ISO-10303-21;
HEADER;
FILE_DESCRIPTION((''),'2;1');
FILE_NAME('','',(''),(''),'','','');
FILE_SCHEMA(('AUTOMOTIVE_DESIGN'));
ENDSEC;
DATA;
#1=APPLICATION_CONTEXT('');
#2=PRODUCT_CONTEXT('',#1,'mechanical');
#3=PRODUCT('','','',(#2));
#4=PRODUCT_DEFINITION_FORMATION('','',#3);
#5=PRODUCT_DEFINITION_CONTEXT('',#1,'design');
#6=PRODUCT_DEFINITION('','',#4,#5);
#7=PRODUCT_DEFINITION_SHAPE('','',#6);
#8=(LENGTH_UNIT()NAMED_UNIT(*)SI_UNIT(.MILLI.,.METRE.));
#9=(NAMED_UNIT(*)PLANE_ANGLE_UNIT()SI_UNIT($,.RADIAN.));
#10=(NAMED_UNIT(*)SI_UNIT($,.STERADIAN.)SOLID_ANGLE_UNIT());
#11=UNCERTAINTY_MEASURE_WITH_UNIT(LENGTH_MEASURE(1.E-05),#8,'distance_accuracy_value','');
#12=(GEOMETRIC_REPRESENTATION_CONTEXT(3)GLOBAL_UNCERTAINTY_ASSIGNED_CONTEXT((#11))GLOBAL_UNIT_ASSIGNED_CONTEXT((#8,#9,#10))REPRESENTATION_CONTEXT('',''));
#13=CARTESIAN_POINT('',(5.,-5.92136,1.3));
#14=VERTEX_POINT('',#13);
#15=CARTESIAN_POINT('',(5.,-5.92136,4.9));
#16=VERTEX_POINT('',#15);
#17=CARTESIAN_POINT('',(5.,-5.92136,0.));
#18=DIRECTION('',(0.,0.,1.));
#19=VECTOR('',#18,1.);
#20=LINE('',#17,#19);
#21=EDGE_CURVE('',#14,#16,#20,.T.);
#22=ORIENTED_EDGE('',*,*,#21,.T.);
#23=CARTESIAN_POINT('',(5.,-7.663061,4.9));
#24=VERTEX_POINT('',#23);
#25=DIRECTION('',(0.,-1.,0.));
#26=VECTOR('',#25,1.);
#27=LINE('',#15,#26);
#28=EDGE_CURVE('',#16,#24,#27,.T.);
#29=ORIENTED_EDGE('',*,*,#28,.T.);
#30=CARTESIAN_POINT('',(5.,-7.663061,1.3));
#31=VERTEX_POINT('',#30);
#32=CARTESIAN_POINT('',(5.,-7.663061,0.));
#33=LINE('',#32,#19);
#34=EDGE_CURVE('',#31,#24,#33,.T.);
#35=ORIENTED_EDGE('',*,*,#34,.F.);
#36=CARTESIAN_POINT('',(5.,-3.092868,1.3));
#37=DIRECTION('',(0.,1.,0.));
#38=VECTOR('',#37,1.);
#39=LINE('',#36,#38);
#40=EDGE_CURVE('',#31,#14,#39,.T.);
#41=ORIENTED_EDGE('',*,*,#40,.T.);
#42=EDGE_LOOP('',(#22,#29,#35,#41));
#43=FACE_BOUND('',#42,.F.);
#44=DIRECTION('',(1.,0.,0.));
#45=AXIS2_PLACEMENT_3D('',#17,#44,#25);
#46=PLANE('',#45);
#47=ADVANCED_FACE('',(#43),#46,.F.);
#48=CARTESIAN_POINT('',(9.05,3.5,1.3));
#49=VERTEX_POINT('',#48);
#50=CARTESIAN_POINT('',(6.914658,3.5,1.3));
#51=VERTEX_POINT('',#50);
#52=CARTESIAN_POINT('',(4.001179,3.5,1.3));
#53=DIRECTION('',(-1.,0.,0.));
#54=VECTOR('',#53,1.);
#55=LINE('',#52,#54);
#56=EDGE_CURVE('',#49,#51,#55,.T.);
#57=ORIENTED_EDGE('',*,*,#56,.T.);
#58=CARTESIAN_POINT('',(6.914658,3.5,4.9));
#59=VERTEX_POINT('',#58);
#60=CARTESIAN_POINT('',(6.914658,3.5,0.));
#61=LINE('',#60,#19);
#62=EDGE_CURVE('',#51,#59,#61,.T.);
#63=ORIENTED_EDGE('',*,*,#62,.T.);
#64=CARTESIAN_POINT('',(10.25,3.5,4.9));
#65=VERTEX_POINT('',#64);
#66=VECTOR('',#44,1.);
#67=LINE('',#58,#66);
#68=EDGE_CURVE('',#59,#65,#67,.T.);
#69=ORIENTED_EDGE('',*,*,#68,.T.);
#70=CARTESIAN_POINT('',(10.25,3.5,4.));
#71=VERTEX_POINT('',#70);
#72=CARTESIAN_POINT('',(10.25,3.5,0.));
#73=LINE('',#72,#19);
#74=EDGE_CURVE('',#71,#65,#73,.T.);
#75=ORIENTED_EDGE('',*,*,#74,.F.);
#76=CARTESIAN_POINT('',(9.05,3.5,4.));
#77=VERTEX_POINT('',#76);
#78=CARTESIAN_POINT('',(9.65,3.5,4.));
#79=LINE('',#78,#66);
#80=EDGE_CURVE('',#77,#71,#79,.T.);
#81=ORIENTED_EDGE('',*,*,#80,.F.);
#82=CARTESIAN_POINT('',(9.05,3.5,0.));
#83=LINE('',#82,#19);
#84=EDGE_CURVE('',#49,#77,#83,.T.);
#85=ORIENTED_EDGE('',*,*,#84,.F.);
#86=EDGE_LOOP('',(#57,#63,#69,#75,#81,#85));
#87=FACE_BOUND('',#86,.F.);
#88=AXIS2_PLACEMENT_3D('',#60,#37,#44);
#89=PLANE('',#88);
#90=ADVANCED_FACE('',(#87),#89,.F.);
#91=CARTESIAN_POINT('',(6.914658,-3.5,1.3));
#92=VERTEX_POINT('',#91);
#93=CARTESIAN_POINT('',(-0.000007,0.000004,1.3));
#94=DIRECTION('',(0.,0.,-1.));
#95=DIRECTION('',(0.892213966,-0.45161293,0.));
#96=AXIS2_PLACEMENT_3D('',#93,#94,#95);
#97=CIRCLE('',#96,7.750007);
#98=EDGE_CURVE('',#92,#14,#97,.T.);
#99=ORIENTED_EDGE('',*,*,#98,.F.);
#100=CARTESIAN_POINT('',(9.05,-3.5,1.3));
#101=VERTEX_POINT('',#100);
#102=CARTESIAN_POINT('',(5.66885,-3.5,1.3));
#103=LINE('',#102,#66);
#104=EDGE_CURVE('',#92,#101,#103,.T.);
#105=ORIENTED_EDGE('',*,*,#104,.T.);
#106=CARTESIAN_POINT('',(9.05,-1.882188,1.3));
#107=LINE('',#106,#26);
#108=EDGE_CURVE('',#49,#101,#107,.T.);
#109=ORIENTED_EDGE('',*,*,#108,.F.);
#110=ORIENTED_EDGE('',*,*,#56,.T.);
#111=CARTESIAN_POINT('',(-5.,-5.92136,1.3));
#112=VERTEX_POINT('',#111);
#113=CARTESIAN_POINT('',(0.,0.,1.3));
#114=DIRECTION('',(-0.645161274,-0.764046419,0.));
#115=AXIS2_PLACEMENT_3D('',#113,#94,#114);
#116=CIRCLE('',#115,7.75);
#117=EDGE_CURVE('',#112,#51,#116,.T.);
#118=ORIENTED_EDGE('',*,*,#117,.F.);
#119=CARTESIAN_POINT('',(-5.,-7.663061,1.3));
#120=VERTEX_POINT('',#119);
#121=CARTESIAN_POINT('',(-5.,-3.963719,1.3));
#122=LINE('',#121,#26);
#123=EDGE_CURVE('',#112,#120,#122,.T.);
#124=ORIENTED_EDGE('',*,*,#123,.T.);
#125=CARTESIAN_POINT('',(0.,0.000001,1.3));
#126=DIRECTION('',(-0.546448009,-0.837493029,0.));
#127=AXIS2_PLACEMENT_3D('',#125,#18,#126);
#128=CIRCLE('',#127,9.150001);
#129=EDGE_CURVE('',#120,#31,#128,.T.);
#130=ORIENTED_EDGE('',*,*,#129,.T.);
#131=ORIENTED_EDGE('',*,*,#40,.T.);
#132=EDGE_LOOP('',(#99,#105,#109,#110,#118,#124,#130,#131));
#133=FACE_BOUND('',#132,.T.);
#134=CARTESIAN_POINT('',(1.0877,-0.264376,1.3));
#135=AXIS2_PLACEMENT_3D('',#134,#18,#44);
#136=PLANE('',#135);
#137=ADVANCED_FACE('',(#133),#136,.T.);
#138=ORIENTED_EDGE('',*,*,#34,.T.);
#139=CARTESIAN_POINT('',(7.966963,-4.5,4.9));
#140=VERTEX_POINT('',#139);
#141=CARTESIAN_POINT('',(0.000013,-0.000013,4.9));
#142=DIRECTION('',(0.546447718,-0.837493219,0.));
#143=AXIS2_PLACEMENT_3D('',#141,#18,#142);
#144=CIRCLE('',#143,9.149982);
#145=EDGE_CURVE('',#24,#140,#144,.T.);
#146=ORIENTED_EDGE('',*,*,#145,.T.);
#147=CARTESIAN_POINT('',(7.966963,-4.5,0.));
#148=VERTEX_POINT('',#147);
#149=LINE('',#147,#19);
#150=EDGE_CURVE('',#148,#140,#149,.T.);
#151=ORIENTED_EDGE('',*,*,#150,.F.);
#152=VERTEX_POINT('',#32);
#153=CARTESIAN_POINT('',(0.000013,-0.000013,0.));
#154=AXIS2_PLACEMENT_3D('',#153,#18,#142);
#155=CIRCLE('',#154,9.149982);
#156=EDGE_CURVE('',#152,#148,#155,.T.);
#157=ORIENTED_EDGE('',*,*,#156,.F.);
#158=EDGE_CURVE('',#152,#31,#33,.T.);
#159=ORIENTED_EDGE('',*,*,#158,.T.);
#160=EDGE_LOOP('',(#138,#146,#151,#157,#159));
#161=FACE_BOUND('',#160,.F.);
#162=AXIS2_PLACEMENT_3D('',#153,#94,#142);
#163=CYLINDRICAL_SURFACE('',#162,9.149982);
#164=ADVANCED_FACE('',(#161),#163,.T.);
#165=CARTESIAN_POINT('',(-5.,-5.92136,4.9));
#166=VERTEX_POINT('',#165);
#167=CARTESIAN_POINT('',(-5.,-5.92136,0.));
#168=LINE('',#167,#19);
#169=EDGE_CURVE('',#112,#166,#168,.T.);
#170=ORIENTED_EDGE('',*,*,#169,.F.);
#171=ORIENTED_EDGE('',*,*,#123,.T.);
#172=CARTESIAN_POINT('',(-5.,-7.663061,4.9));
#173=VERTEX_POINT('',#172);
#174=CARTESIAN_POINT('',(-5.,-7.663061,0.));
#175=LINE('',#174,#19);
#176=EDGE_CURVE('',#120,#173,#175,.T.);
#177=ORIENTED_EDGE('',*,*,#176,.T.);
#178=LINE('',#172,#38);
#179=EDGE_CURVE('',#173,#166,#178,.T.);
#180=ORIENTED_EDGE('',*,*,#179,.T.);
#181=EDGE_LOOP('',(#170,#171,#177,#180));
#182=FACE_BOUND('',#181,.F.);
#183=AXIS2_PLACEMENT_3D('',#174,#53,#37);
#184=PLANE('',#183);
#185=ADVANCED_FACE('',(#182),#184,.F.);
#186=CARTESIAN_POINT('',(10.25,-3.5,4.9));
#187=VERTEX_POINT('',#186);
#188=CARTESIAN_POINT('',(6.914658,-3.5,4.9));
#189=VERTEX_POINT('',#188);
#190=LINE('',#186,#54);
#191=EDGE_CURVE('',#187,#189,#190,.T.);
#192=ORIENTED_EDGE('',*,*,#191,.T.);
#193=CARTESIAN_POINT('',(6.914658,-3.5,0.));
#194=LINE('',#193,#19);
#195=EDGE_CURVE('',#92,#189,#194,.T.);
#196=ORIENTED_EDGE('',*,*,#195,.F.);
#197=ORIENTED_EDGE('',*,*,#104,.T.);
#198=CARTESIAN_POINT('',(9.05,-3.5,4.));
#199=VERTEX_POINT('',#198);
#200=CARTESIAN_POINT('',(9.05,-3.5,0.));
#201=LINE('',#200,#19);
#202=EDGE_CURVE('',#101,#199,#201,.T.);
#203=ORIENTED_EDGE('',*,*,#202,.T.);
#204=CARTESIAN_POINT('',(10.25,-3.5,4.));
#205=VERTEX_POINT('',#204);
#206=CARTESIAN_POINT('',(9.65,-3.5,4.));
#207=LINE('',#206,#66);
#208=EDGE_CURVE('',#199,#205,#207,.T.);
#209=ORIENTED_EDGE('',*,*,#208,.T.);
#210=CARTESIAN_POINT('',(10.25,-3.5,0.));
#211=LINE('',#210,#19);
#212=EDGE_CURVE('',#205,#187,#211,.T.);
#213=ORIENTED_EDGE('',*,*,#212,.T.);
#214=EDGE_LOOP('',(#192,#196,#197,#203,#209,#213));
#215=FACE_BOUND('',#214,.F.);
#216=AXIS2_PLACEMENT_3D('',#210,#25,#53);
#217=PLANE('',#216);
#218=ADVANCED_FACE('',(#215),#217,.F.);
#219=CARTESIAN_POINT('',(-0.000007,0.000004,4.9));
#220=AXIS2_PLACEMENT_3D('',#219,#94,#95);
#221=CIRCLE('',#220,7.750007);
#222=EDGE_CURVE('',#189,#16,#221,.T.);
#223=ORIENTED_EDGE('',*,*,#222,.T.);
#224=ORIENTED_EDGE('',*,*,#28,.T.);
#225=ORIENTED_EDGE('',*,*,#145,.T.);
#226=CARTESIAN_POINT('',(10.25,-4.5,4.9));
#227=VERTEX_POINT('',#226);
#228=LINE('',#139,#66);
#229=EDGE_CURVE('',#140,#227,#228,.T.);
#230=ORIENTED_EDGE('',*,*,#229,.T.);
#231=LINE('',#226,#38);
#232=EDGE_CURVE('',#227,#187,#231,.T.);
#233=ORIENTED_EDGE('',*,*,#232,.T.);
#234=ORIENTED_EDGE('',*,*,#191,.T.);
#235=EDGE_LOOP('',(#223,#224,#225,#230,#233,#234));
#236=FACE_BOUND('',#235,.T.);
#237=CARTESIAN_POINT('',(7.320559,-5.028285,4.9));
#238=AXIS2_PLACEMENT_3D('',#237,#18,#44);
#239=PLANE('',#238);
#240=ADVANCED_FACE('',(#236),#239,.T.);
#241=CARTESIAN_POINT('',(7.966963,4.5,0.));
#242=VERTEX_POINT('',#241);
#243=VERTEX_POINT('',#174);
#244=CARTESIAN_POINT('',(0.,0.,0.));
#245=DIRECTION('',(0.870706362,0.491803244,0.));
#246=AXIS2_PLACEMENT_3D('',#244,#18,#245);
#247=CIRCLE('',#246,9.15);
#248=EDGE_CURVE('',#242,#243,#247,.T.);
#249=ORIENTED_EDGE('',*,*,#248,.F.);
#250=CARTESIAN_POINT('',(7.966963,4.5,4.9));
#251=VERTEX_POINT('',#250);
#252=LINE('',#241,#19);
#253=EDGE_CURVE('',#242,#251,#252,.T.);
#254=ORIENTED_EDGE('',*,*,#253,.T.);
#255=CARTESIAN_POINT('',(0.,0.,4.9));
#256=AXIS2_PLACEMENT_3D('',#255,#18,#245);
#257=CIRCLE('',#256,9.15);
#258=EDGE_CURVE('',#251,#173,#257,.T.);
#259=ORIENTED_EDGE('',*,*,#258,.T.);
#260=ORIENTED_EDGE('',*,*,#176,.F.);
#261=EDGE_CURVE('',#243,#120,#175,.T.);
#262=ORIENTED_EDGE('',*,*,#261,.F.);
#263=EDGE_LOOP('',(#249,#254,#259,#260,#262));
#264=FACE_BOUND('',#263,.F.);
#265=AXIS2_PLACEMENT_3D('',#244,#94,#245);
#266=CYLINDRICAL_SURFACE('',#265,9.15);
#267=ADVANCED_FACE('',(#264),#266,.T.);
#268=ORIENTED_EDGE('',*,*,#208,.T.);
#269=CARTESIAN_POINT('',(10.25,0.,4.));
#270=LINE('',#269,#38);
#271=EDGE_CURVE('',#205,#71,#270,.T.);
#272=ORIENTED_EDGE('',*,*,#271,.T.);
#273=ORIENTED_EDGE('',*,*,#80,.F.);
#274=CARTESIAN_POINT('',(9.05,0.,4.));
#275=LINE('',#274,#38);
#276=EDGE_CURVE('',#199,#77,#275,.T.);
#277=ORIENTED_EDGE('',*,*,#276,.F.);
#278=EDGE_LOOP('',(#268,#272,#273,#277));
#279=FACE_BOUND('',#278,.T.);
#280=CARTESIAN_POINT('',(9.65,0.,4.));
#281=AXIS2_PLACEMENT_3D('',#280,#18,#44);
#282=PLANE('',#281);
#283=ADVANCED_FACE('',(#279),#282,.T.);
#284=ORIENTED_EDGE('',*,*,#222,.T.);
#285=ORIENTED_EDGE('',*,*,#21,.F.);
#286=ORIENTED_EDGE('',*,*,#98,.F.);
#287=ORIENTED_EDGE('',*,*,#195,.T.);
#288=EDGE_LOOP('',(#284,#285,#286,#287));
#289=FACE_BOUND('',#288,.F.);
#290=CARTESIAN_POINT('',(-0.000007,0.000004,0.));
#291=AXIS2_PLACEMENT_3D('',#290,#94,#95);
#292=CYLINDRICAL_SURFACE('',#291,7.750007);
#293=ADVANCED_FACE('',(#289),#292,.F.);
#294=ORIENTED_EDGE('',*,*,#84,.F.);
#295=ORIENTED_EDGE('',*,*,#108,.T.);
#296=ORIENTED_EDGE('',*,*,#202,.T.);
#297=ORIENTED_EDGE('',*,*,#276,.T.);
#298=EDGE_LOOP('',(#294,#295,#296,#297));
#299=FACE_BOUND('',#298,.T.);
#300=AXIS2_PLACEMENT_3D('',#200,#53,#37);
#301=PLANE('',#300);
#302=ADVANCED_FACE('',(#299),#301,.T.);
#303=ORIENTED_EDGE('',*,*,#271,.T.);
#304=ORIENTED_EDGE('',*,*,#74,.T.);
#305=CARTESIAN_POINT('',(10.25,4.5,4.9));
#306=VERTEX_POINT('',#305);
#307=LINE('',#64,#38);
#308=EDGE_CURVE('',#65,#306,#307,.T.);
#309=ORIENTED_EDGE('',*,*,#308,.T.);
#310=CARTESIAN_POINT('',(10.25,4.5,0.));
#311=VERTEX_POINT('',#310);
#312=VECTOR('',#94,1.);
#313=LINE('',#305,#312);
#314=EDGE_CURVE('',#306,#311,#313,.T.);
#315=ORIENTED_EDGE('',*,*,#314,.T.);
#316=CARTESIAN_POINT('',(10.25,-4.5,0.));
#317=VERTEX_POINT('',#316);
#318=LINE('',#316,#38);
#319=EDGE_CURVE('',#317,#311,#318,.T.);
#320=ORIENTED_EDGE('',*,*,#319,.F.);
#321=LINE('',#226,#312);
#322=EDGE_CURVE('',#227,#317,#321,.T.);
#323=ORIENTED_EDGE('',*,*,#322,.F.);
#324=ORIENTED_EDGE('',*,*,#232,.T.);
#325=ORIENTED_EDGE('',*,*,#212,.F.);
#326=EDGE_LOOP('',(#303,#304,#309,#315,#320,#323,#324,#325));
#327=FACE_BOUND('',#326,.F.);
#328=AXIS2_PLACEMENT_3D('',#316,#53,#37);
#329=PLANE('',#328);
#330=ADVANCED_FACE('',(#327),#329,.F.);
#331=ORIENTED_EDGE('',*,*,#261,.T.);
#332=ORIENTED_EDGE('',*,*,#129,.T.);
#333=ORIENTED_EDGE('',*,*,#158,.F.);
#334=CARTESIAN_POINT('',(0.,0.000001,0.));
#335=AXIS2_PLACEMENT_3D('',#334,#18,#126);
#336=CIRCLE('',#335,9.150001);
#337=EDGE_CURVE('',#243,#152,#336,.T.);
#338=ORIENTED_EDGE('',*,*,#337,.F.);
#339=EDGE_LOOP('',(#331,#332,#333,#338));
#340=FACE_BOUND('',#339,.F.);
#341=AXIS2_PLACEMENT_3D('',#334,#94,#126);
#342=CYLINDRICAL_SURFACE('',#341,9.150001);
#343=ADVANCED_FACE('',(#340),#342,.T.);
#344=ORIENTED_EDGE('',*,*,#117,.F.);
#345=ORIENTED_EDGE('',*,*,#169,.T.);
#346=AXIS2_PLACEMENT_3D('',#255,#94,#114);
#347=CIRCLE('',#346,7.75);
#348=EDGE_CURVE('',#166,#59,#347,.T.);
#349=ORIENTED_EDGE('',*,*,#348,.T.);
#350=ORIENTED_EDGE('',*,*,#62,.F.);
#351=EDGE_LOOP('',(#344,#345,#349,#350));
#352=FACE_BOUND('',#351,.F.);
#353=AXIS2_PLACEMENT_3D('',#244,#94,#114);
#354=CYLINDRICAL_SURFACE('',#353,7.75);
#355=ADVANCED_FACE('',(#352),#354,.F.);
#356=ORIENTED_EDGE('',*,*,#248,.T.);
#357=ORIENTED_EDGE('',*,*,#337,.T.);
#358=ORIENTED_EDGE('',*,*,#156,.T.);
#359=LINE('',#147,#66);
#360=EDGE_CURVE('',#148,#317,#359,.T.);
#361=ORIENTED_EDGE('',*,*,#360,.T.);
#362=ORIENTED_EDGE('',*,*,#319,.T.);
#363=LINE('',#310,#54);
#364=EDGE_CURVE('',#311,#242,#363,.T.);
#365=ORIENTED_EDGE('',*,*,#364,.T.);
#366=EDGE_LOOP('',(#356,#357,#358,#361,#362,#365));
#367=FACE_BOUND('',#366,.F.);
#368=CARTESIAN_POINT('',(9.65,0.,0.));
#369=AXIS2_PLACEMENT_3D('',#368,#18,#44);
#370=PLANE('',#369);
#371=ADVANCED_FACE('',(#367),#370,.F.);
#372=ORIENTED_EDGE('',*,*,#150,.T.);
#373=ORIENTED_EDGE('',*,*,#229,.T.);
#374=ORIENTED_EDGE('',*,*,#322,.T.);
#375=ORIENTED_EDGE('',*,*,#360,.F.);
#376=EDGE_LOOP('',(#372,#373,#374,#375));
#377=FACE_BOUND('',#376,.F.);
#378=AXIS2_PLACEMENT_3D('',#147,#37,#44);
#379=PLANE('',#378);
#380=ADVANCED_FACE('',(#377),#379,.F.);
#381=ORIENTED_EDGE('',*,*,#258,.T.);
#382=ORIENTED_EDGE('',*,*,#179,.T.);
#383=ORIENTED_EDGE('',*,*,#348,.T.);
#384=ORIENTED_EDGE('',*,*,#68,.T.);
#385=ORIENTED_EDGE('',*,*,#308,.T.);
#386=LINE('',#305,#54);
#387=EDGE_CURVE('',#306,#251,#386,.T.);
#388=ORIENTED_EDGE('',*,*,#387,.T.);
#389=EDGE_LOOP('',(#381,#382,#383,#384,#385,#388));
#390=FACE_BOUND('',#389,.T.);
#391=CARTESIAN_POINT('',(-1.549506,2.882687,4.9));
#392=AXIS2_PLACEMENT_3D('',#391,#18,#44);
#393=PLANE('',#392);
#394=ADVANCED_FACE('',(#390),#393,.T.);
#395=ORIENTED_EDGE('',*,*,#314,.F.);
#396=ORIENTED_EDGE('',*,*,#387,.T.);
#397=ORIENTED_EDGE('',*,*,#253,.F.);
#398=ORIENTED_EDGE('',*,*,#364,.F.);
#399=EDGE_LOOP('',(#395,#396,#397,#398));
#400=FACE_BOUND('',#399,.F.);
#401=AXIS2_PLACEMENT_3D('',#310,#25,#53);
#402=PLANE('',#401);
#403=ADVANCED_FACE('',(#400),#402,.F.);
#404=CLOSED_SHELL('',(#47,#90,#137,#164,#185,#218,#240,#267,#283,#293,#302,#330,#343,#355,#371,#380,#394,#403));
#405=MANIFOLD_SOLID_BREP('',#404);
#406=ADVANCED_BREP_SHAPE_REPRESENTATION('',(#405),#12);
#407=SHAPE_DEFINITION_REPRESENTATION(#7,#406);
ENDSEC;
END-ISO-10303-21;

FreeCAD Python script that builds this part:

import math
import FreeCAD as App
import Part
import Sketcher

V = App.Vector


def add_polygon(sketch, points):
    """Adds a closed chain of lines whose ends are joined by coincident constraints."""
    first, n = sketch.GeometryCount, len(points)
    for a, b in zip(points, points[1:] + points[:1]):
        sketch.addGeometry(Part.LineSegment(App.Vector(*a, 0), App.Vector(*b, 0)), False)
    for i in range(n):
        sketch.addConstraint(Sketcher.Constraint("Coincident", first + i, 2, first + (i + 1) % n, 1))

doc = App.newDocument("Part")
body = doc.addObject("PartDesign::Body", "Body")

sketch1 = body.newObject("Sketcher::SketchObject", "Sketch")
sketch1.AttachmentSupport = (doc.getObject("XY_Plane"), [""])
sketch1.MapMode = "FlatFace"
sketch1.addGeometry(Part.LineSegment(V(10.25, 4.5, 0), V(7.966963, 4.5, 0)), False)
sketch1.addGeometry(Part.ArcOfCircle(Part.Circle(V(0, 0, 0), V(0, 0, 1), 9.15), math.radians(29.459173), math.radians(236.876327)), False)
sketch1.addGeometry(Part.ArcOfCircle(Part.Circle(V(0, 0.000001, 0), V(0, 0, 1), 9.150001), math.radians(-123.123671), math.radians(-56.876329)), False)
sketch1.addGeometry(Part.ArcOfCircle(Part.Circle(V(0.000013, -0.000013, 0), V(0, 0, 1), 9.149982), math.radians(-56.876349), math.radians(-29.459144)), False)
sketch1.addGeometry(Part.LineSegment(V(7.966963, -4.5, 0), V(10.25, -4.5, 0)), False)
sketch1.addGeometry(Part.LineSegment(V(10.25, -4.5, 0), V(10.25, 4.5, 0)), False)
sketch1.addConstraint(Sketcher.Constraint("Coincident", 0, 2, 1, 1))
sketch1.addConstraint(Sketcher.Constraint("Tangent", 1, 2, 2, 1))
sketch1.addConstraint(Sketcher.Constraint("Tangent", 2, 2, 3, 1))
sketch1.addConstraint(Sketcher.Constraint("Coincident", 3, 2, 4, 1))
sketch1.addConstraint(Sketcher.Constraint("Coincident", 4, 2, 5, 1))
sketch1.addConstraint(Sketcher.Constraint("Coincident", 5, 2, 0, 1))
sketch1.addConstraint(Sketcher.Constraint("Horizontal", 0))
sketch1.addConstraint(Sketcher.Constraint("Horizontal", 4))
sketch1.addConstraint(Sketcher.Constraint("Vertical", 5))
sketch1.addConstraint(Sketcher.Constraint("Coincident", 1, 3, -1, 1))
sketch1.addConstraint(Sketcher.Constraint("Equal", 1, 2))
sketch1.addConstraint(Sketcher.Constraint("Symmetric", 0, 2, 3, 2, -1))
sketch1.addConstraint(Sketcher.Constraint("Horizontal", 1, 2, 2, 2))
sketch1.addConstraint(Sketcher.Constraint("DistanceY", 5, 1, 5, 2, 9.0))
sketch1.addConstraint(Sketcher.Constraint("Radius", 1, 9.15))
sketch1.addConstraint(Sketcher.Constraint("DistanceX", 1, 2, -1, 1, 5.0))
sketch1.addConstraint(Sketcher.Constraint("DistanceX", -1, 1, 4, 2, 10.25))
pad1 = body.newObject("PartDesign::Pad", "Pad")
pad1.Profile = sketch1
pad1.Length = 1.3

sketch2 = body.newObject("Sketcher::SketchObject", "Sketch001")
sketch2.AttachmentSupport = (doc.getObject("XY_Plane"), [""])
sketch2.MapMode = "FlatFace"
sketch2.addGeometry(Part.ArcOfCircle(Part.Circle(V(0, 0, 0), V(0, 0, 1), 7.75), math.radians(26.847216), math.radians(229.822232)), False)
sketch2.addGeometry(Part.LineSegment(V(6.914658, 3.5, 0), V(10.25, 3.5, 0)), False)
sketch2.addGeometry(Part.LineSegment(V(10.25, 3.5, 0), V(10.25, 4.5, 0)), False)
sketch2.addGeometry(Part.LineSegment(V(10.25, 4.5, 0), V(7.966963, 4.5, 0)), False)
sketch2.addGeometry(Part.ArcOfCircle(Part.Circle(V(0, 0, 0), V(0, 0, 1), 9.15), math.radians(29.459173), math.radians(236.876327)), False)
sketch2.addGeometry(Part.LineSegment(V(-5, -7.663061, 0), V(-5, -5.92136, 0)), False)
sketch2.addGeometry(Part.ArcOfCircle(Part.Circle(V(-0.000007, 0.000004, 0), V(0, 0, 1), 7.750007), math.radians(-49.822211), math.radians(-26.847215)), False)
sketch2.addGeometry(Part.LineSegment(V(5, -5.92136, 0), V(5, -7.663061, 0)), False)
sketch2.addGeometry(Part.ArcOfCircle(Part.Circle(V(0.000013, -0.000013, 0), V(0, 0, 1), 9.149982), math.radians(-56.876349), math.radians(-29.459144)), False)
sketch2.addGeometry(Part.LineSegment(V(7.966963, -4.5, 0), V(10.25, -4.5, 0)), False)
sketch2.addGeometry(Part.LineSegment(V(10.25, -4.5, 0), V(10.25, -3.5, 0)), False)
sketch2.addGeometry(Part.LineSegment(V(10.25, -3.5, 0), V(6.914658, -3.5, 0)), False)
sketch2.addConstraint(Sketcher.Constraint("Coincident", 0, 1, 1, 1))
sketch2.addConstraint(Sketcher.Constraint("Coincident", 1, 2, 2, 1))
sketch2.addConstraint(Sketcher.Constraint("Coincident", 2, 2, 3, 1))
sketch2.addConstraint(Sketcher.Constraint("Coincident", 3, 2, 4, 1))
sketch2.addConstraint(Sketcher.Constraint("Coincident", 4, 2, 5, 1))
sketch2.addConstraint(Sketcher.Constraint("Coincident", 5, 2, 0, 2))
sketch2.addConstraint(Sketcher.Constraint("Coincident", 6, 1, 7, 1))
sketch2.addConstraint(Sketcher.Constraint("Coincident", 7, 2, 8, 1))
sketch2.addConstraint(Sketcher.Constraint("Coincident", 8, 2, 9, 1))
sketch2.addConstraint(Sketcher.Constraint("Coincident", 9, 2, 10, 1))
sketch2.addConstraint(Sketcher.Constraint("Coincident", 10, 2, 11, 1))
sketch2.addConstraint(Sketcher.Constraint("Coincident", 11, 2, 6, 2))
sketch2.addConstraint(Sketcher.Constraint("Horizontal", 1))
sketch2.addConstraint(Sketcher.Constraint("Vertical", 2))
sketch2.addConstraint(Sketcher.Constraint("Horizontal", 3))
sketch2.addConstraint(Sketcher.Constraint("Vertical", 5))
sketch2.addConstraint(Sketcher.Constraint("Vertical", 7))
sketch2.addConstraint(Sketcher.Constraint("Horizontal", 9))
sketch2.addConstraint(Sketcher.Constraint("Vertical", 10))
sketch2.addConstraint(Sketcher.Constraint("Horizontal", 11))
sketch2.addConstraint(Sketcher.Constraint("Coincident", 0, 3, -1, 1))
sketch2.addConstraint(Sketcher.Constraint("Coincident", 4, 3, -1, 1))
sketch2.addConstraint(Sketcher.Constraint("Coincident", 6, 3, -1, 1))
sketch2.addConstraint(Sketcher.Constraint("Symmetric", 5, 2, 6, 1, -2))
sketch2.addConstraint(Sketcher.Constraint("Symmetric", 3, 2, 8, 2, -1))
sketch2.addConstraint(Sketcher.Constraint("Symmetric", 1, 2, 10, 2, -1))
sketch2.addConstraint(Sketcher.Constraint("Horizontal", 4, 2, 7, 2))
sketch2.addConstraint(Sketcher.Constraint("DistanceY", 2, 1, 2, 2, 1.0))
sketch2.addConstraint(Sketcher.Constraint("Radius", 0, 7.75))
sketch2.addConstraint(Sketcher.Constraint("Radius", 4, 9.15))
sketch2.addConstraint(Sketcher.Constraint("DistanceX", 4, 2, -1, 1, 5.0))
sketch2.addConstraint(Sketcher.Constraint("DistanceY", 8, 2, 0, 1, 8.0))
sketch2.addConstraint(Sketcher.Constraint("DistanceX", -1, 1, 1, 2, 10.25))
sketch2.addConstraint(Sketcher.Constraint("Radius", 8, 9.149982))
pad2 = body.newObject("PartDesign::Pad", "Pad001")
pad2.Profile = sketch2
pad2.Length = 4.9

sketch3 = body.newObject("Sketcher::SketchObject", "Sketch002")
sketch3.AttachmentSupport = (doc.getObject("XY_Plane"), [""])
sketch3.MapMode = "FlatFace"
add_polygon(sketch3, [(9.05, 3.5), (9.05, -3.5), (10.25, -3.5), (10.25, 3.5)])
sketch3.addConstraint(Sketcher.Constraint("Vertical", 0))
sketch3.addConstraint(Sketcher.Constraint("Horizontal", 1))
sketch3.addConstraint(Sketcher.Constraint("Vertical", 2))
sketch3.addConstraint(Sketcher.Constraint("Horizontal", 3))
sketch3.addConstraint(Sketcher.Constraint("DistanceY", 0, 2, 0, 1, 7.0))
sketch3.addConstraint(Sketcher.Constraint("DistanceX", 1, 1, 1, 2, 1.2))
sketch3.addConstraint(Sketcher.Constraint("DistanceY", 0, 2, -1, 1, 3.5))
sketch3.addConstraint(Sketcher.Constraint("DistanceX", -1, 1, 0, 2, 9.05))
pad3 = body.newObject("PartDesign::Pad", "Pad002")
pad3.Profile = sketch3
pad3.Length = 4

doc.recompute()
